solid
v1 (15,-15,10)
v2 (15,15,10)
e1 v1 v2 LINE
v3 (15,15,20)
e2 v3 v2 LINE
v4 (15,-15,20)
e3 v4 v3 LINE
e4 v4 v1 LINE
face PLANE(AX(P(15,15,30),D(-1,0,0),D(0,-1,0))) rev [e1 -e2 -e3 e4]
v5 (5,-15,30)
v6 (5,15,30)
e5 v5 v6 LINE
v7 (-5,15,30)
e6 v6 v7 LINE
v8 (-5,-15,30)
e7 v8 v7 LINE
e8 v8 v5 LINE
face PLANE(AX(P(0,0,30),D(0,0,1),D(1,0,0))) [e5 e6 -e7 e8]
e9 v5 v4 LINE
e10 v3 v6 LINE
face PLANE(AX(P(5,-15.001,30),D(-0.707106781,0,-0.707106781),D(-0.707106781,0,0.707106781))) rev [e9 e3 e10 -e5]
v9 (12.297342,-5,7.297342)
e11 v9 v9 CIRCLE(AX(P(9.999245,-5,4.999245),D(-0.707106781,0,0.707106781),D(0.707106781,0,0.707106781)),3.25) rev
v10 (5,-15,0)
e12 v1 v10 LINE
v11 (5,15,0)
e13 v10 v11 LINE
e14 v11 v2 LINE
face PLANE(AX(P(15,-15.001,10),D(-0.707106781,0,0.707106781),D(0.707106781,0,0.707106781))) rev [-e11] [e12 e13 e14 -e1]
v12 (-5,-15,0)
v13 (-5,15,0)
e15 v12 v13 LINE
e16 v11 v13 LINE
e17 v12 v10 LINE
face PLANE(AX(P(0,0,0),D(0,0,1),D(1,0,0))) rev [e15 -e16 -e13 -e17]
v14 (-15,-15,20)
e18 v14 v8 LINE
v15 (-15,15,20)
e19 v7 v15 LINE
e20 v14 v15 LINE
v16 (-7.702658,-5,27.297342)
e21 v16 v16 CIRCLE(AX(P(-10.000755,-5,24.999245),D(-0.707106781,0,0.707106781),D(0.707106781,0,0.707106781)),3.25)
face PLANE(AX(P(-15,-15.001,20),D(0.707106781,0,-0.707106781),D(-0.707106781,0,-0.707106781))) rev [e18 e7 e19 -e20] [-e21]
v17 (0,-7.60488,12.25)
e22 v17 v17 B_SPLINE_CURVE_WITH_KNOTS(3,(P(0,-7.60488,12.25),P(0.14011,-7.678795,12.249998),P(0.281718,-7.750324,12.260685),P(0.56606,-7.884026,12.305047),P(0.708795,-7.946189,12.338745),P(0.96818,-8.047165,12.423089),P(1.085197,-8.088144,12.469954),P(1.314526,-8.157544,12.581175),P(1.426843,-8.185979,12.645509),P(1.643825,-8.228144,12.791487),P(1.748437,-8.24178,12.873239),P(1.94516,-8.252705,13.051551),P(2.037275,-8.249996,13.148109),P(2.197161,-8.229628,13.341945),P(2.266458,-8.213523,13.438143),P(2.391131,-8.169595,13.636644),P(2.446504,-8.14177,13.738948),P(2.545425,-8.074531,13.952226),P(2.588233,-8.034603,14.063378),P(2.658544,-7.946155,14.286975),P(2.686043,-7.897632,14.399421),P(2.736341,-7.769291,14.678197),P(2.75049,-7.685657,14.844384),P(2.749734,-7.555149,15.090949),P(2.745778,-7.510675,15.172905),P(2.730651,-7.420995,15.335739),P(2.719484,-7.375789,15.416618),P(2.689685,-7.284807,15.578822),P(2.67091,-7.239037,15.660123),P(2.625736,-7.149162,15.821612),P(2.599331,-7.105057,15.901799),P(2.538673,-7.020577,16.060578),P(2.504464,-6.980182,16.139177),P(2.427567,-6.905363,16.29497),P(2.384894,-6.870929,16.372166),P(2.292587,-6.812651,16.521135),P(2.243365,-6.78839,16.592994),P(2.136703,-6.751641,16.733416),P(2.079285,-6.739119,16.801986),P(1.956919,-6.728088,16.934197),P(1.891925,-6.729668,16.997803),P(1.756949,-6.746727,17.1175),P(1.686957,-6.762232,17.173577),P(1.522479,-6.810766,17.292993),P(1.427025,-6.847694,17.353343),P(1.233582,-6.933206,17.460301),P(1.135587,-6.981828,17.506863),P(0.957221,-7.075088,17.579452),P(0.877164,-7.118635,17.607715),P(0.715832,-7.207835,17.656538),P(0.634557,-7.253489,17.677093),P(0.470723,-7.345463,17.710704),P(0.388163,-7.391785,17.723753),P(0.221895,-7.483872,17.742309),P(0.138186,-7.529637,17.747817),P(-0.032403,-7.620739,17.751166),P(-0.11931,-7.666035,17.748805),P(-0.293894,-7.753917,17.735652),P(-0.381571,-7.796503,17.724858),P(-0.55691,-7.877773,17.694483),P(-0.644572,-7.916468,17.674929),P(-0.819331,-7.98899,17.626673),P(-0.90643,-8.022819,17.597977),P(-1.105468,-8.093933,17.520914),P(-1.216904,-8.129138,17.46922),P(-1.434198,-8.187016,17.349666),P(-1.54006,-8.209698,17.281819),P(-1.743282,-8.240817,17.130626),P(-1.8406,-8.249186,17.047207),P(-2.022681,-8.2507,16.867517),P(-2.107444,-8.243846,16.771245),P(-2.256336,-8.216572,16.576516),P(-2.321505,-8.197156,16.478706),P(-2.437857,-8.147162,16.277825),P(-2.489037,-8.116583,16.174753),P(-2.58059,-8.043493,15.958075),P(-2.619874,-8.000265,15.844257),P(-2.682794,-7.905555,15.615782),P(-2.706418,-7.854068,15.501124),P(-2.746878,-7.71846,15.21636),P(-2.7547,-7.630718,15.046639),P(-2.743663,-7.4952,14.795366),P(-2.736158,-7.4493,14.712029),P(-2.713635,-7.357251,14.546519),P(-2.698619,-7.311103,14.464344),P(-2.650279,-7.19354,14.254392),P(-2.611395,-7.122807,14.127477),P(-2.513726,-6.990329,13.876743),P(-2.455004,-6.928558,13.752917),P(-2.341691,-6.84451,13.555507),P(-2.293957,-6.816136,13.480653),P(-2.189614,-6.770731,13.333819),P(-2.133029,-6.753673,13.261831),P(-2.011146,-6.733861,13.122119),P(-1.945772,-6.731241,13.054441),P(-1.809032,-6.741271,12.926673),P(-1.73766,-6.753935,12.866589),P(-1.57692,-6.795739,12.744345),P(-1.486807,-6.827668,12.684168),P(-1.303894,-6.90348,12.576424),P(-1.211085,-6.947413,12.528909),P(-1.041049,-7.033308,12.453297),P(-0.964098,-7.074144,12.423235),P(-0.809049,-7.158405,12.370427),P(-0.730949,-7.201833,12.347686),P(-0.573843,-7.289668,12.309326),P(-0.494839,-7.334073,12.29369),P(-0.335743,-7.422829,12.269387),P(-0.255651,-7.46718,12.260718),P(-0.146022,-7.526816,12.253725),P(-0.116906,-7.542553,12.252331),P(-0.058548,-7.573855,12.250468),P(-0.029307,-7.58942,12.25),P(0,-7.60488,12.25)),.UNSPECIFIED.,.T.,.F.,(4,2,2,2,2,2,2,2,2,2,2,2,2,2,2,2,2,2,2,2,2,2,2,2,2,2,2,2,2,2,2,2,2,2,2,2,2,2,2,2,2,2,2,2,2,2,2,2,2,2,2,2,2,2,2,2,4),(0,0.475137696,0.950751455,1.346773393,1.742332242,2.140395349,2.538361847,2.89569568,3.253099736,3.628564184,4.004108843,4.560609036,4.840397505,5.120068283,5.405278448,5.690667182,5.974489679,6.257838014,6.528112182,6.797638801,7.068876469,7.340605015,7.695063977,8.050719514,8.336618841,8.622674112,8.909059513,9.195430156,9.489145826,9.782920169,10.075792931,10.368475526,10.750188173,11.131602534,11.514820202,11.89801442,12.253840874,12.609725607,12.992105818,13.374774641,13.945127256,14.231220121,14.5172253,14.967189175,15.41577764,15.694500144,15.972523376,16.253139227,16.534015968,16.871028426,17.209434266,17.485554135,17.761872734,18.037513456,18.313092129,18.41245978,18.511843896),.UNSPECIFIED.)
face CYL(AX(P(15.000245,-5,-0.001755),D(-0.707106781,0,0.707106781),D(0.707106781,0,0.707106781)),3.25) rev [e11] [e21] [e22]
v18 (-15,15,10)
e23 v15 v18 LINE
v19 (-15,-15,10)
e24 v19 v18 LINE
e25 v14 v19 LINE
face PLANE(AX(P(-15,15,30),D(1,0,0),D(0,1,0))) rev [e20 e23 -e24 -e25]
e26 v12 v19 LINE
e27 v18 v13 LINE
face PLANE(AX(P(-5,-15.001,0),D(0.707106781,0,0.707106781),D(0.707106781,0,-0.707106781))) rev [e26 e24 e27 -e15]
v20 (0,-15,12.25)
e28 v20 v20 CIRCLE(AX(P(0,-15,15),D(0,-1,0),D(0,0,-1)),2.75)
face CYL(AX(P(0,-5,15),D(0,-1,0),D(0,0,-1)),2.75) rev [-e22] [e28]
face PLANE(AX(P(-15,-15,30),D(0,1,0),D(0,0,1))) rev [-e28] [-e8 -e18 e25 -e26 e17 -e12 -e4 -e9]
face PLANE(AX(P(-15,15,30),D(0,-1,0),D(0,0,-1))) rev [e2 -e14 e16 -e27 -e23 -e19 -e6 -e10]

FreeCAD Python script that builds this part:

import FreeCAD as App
import Part
import Sketcher

V = App.Vector
Q = App.Units.Quantity


def add_polygon(sketch, points):
    """Adds a closed chain of lines whose ends are joined by coincident constraints."""
    first, n = sketch.GeometryCount, len(points)
    for a, b in zip(points, points[1:] + points[:1]):
        sketch.addGeometry(Part.LineSegment(App.Vector(*a, 0), App.Vector(*b, 0)), False)
    for i in range(n):
        sketch.addConstraint(Sketcher.Constraint("Coincident", first + i, 2, first + (i + 1) % n, 1))

doc = App.newDocument("Part")
body = doc.addObject("PartDesign::Body", "Body")

# Sketch on XY plane
sketch1 = doc.addObject("Sketcher::SketchObject", "Sketch")
body.addObject(sketch1)
sketch1.AttachmentSupport = (doc.XY_Plane, [""])
sketch1.MapMode = "FlatFace"
add_polygon(sketch1, [(-15, 15), (-15, -15), (15, -15), (15, 15)])  # lines 0-3
sketch1.addConstraint(Sketcher.Constraint("Vertical", 0))
sketch1.addConstraint(Sketcher.Constraint("Horizontal", 1))
sketch1.addConstraint(Sketcher.Constraint("Vertical", 2))
sketch1.addConstraint(Sketcher.Constraint("Horizontal", 3))
sketch1.addConstraint(Sketcher.Constraint("Symmetric", 0, 2, 2, 2, -1, 1))
sketch1.addConstraint(Sketcher.Constraint("Equal", 3, 0))
sketch1.addConstraint(Sketcher.Constraint("DistanceX", 1, 1, 1, 2, Q("30 mm")))
pad1 = doc.addObject("PartDesign::Pad", "Pad")
body.addObject(pad1)
pad1.Profile = sketch1
pad1.Length = 30

# Sketch on XZ plane
sketch2 = doc.addObject("Sketcher::SketchObject", "Sketch001")
body.addObject(sketch2)
sketch2.AttachmentSupport = (doc.XZ_Plane, [""])
sketch2.MapMode = "FlatFace"
sketch2.AttachmentOffset = App.Placement(V(0, 0, -15), App.Rotation())
add_polygon(sketch2, [(-5, 30), (-15, 20), (-15, 30)])  # lines 0-2
sketch2.addConstraint(Sketcher.Constraint("Vertical", 1))
sketch2.addConstraint(Sketcher.Constraint("Horizontal", 2))
sketch2.addConstraint(Sketcher.Constraint("Equal", 2, 1))
sketch2.addConstraint(Sketcher.Constraint("DistanceX", 2, 1, 2, 2, Q("10 mm")))
sketch2.addConstraint(Sketcher.Constraint("DistanceX", 0, 2, -1, 1, Q("15 mm")))
sketch2.addConstraint(Sketcher.Constraint("DistanceY", -1, 1, 0, 2, Q("20 mm")))
pocket1 = doc.addObject("PartDesign::Pocket", "Pocket")
body.addObject(pocket1)
pocket1.Profile = sketch2
pocket1.Type = "UpToFirst"
pocket1.Reversed = True

# Sketch on XZ plane
sketch3 = doc.addObject("Sketcher::SketchObject", "Sketch002")
body.addObject(sketch3)
sketch3.AttachmentSupport = (doc.XZ_Plane, [""])
sketch3.MapMode = "FlatFace"
sketch3.AttachmentOffset = App.Placement(V(0, 0, -15), App.Rotation())
add_polygon(sketch3, [(-15, 0), (-15, 10), (-5, 0)])  # lines 0-2
sketch3.addConstraint(Sketcher.Constraint("Vertical", 0))
sketch3.addConstraint(Sketcher.Constraint("Horizontal", 2))
sketch3.addConstraint(Sketcher.Constraint("PointOnObject", 1, 2, -1))
sketch3.addConstraint(Sketcher.Constraint("Equal", 2, 0))
sketch3.addConstraint(Sketcher.Constraint("DistanceX", 2, 2, 2, 1, Q("10 mm")))
sketch3.addConstraint(Sketcher.Constraint("DistanceX", 0, 2, -1, 1, Q("15 mm")))
pocket2 = doc.addObject("PartDesign::Pocket", "Pocket001")
body.addObject(pocket2)
pocket2.Profile = sketch3
pocket2.Type = "UpToFirst"
pocket2.Reversed = True

# Sketch on XZ plane
sketch4 = doc.addObject("Sketcher::SketchObject", "Sketch003")
body.addObject(sketch4)
sketch4.AttachmentSupport = (doc.XZ_Plane, [""])
sketch4.MapMode = "FlatFace"
sketch4.AttachmentOffset = App.Placement(V(0, 0, -15), App.Rotation())
add_polygon(sketch4, [(15, 0), (5, 0), (15, 10)])  # lines 0-2
sketch4.addConstraint(Sketcher.Constraint("Horizontal", 0))
sketch4.addConstraint(Sketcher.Constraint("Vertical", 2))
sketch4.addConstraint(Sketcher.Constraint("PointOnObject", 0, 2, -1))
sketch4.addConstraint(Sketcher.Constraint("Equal", 0, 2))
sketch4.addConstraint(Sketcher.Constraint("DistanceX", 0, 2, 0, 1, Q("10 mm")))
sketch4.addConstraint(Sketcher.Constraint("DistanceX", -1, 1, 0, 2, Q("5 mm")))
pocket3 = doc.addObject("PartDesign::Pocket", "Pocket002")
body.addObject(pocket3)
pocket3.Profile = sketch4
pocket3.Type = "UpToFirst"
pocket3.Reversed = True

# Sketch on XZ plane
sketch5 = doc.addObject("Sketcher::SketchObject", "Sketch004")
body.addObject(sketch5)
sketch5.AttachmentSupport = (doc.XZ_Plane, [""])
sketch5.MapMode = "FlatFace"
sketch5.AttachmentOffset = App.Placement(V(0, 0, -15), App.Rotation())
add_polygon(sketch5, [(15, 30), (15, 20), (5, 30)])  # lines 0-2
sketch5.addConstraint(Sketcher.Constraint("Vertical", 0))
sketch5.addConstraint(Sketcher.Constraint("Horizontal", 2))
sketch5.addConstraint(Sketcher.Constraint("Equal", 2, 0))
sketch5.addConstraint(Sketcher.Constraint("DistanceX", 2, 1, 2, 2, Q("10 mm")))
sketch5.addConstraint(Sketcher.Constraint("DistanceX", -1, 1, 0, 2, Q("15 mm")))
sketch5.addConstraint(Sketcher.Constraint("DistanceY", -1, 1, 0, 2, Q("20 mm")))
pocket4 = doc.addObject("PartDesign::Pocket", "Pocket003")
body.addObject(pocket4)
pocket4.Profile = sketch5
pocket4.Type = "UpToFirst"
pocket4.Reversed = True

# Sketch on an angled plane
sketch6 = doc.addObject("Sketcher::SketchObject", "Sketch005")
body.addObject(sketch6)
sketch6.Placement = App.Placement(V(-17.5, 0, 17.5), App.Rotation(V(0.707106781, 0, 0.707106781), V(0, 0.999999999, 0), V(-0.707106781, 0, 0.707106781), "ZXY"))
sketch6.addGeometry(Part.Circle(V(10.6, -5, 0), V(0, 0, 1), 3.2), False)
sketch6.addConstraint(Sketcher.Constraint("Diameter", 0, Q("6.5 mm")))
sketch6.addConstraint(Sketcher.Constraint("DistanceY", 0, 3, -1, 1, Q("5 mm")))
sketch6.addConstraint(Sketcher.Constraint("DistanceX", -1, 1, 0, 3, Q("10.605534 mm")))
pocket5 = doc.addObject("PartDesign::Pocket", "Pocket004")
body.addObject(pocket5)
pocket5.Profile = sketch6
pocket5.Type = "UpToFirst"

# Sketch on XZ plane
sketch7 = doc.addObject("Sketcher::SketchObject", "Sketch006")
body.addObject(sketch7)
sketch7.AttachmentSupport = (doc.XZ_Plane, [""])
sketch7.MapMode = "FlatFace"
sketch7.AttachmentOffset = App.Placement(V(0, 0, 15), App.Rotation())
sketch7.addGeometry(Part.Circle(V(0, 15, 0), V(0, 0, 1), 2.8), False)
sketch7.addConstraint(Sketcher.Constraint("PointOnObject", 0, 3, -2))
sketch7.addConstraint(Sketcher.Constraint("Diameter", 0, Q("5.5 mm")))
sketch7.addConstraint(Sketcher.Constraint("DistanceY", -1, 1, 0, 3, Q("15 mm")))
pocket6 = doc.addObject("PartDesign::Pocket", "Pocket005")
body.addObject(pocket6)
pocket6.Profile = sketch7
pocket6.Length = 10

doc.recompute()
